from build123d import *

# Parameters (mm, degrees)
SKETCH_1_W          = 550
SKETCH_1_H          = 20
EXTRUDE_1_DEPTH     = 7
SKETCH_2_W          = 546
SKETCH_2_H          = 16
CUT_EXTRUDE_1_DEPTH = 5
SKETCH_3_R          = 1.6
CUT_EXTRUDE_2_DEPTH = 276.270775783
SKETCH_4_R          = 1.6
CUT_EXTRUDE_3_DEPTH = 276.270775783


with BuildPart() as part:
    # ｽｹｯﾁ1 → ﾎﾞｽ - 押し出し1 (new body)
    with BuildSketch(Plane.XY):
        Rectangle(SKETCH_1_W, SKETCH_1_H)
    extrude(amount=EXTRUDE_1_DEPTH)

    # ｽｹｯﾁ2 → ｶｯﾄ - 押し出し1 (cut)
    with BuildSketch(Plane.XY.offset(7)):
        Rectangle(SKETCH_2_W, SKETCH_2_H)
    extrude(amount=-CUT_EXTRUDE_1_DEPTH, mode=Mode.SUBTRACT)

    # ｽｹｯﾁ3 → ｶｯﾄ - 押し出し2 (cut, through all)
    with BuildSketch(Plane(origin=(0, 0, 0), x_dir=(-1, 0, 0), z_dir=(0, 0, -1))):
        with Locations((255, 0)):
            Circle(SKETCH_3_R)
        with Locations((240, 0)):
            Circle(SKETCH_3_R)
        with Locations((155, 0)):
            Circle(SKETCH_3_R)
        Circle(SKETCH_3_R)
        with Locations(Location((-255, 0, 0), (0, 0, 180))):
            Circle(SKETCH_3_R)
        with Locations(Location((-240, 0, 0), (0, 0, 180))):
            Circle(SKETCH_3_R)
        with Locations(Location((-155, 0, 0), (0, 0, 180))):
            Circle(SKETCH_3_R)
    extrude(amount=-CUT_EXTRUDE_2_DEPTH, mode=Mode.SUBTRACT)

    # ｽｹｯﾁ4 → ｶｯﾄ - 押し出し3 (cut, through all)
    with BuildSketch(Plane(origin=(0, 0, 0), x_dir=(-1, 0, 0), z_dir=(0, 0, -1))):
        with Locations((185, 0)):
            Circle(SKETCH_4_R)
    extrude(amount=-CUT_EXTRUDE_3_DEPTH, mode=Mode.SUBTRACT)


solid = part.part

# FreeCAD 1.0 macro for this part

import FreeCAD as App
import Part
import Sketcher
Q = App.Units.Quantity

doc = App.newDocument("Part")
params = doc.addObject("Spreadsheet::Sheet", "Params")
for row, (alias, value) in enumerate([
    ("sketch1_width", "550 mm"),
    ("sketch1_height", "20 mm"),
    ("pad1_length", "7 mm"),
    ("sketch2_width", "546 mm"),
    ("sketch2_height", "16 mm"),
    ("pocket1_length", "5 mm"),
    ("sketch3_diameter", "3.2 mm"),
    ("sketch4_diameter", "3.2 mm"),
], start=1):
    params.set(f"A{row}", alias)
    params.set(f"B{row}", "=" + value)
    params.setAlias(f"B{row}", alias)

body = doc.addObject("PartDesign::Body", "Body")

sketch1 = body.newObject("Sketcher::SketchObject", "Sketch")
sketch1.AttachmentSupport = (doc.getObject("XY_Plane"), [""])
sketch1.MapMode = "FlatFace"
sketch1.addGeometry([
    Part.LineSegment(App.Vector(-275, 10, 0), App.Vector(-275, -10, 0)),
    Part.LineSegment(App.Vector(-275, -10, 0), App.Vector(275, -10, 0)),
    Part.LineSegment(App.Vector(275, -10, 0), App.Vector(275, 10, 0)),
    Part.LineSegment(App.Vector(275, 10, 0), App.Vector(-275, 10, 0)),
], False)
sketch1.addConstraint([
    Sketcher.Constraint("Coincident", 0, 2, 1, 1),
    Sketcher.Constraint("Coincident", 1, 2, 2, 1),
    Sketcher.Constraint("Coincident", 2, 2, 3, 1),
    Sketcher.Constraint("Coincident", 3, 2, 0, 1),
    Sketcher.Constraint("Vertical", 0),
    Sketcher.Constraint("Horizontal", 1),
    Sketcher.Constraint("Vertical", 2),
    Sketcher.Constraint("Horizontal", 3),
    Sketcher.Constraint("Symmetric", 0, 2, 2, 2, -1, 1),
    Sketcher.Constraint("DistanceX", 1, 1, 1, 2, Q("550 mm")),
    Sketcher.Constraint("DistanceY", 0, 2, 0, 1, Q("20 mm")),
])
sketch1.setExpression("Constraints[9]", "Params.sketch1_width")
sketch1.setExpression("Constraints[10]", "Params.sketch1_height")
pad1 = body.newObject("PartDesign::Pad", "Pad")
pad1.Profile = sketch1
pad1.setExpression("Length", "Params.pad1_length")

sketch2 = body.newObject("Sketcher::SketchObject", "Sketch001")
sketch2.AttachmentSupport = (doc.getObject("XY_Plane"), [""])
sketch2.MapMode = "FlatFace"
sketch2.AttachmentOffset = App.Placement(App.Vector(0, 0, 7), App.Rotation())
sketch2.addGeometry([
    Part.LineSegment(App.Vector(-273, 8, 0), App.Vector(-273, -8, 0)),
    Part.LineSegment(App.Vector(-273, -8, 0), App.Vector(273, -8, 0)),
    Part.LineSegment(App.Vector(273, -8, 0), App.Vector(273, 8, 0)),
    Part.LineSegment(App.Vector(273, 8, 0), App.Vector(-273, 8, 0)),
], False)
sketch2.addConstraint([
    Sketcher.Constraint("Coincident", 0, 2, 1, 1),
    Sketcher.Constraint("Coincident", 1, 2, 2, 1),
    Sketcher.Constraint("Coincident", 2, 2, 3, 1),
    Sketcher.Constraint("Coincident", 3, 2, 0, 1),
    Sketcher.Constraint("Vertical", 0),
    Sketcher.Constraint("Horizontal", 1),
    Sketcher.Constraint("Vertical", 2),
    Sketcher.Constraint("Horizontal", 3),
    Sketcher.Constraint("Symmetric", 0, 2, 2, 2, -1, 1),
    Sketcher.Constraint("DistanceX", 1, 1, 1, 2, Q("546 mm")),
    Sketcher.Constraint("DistanceY", 0, 2, 0, 1, Q("16 mm")),
])
sketch2.setExpression("Constraints[9]", "Params.sketch2_width")
sketch2.setExpression("Constraints[10]", "Params.sketch2_height")
pocket1 = body.newObject("PartDesign::Pocket", "Pocket")
pocket1.Profile = sketch2
pocket1.setExpression("Length", "Params.pocket1_length")

sketch3 = body.newObject("Sketcher::SketchObject", "Sketch002")
sketch3.AttachmentSupport = (doc.getObject("XY_Plane"), [""])
sketch3.MapMode = "FlatFace"
sketch3.addGeometry([
    Part.Circle(App.Vector(-255, 0, 0), App.Vector(0, 0, 1), 1.6),
    Part.Circle(App.Vector(-240, 0, 0), App.Vector(0, 0, 1), 1.6),
    Part.Circle(App.Vector(-155, 0, 0), App.Vector(0, 0, 1), 1.6),
    Part.Circle(App.Vector(0, 0, 0), App.Vector(0, 0, 1), 1.6),
    Part.Circle(App.Vector(255, 0, 0), App.Vector(0, 0, 1), 1.6),
    Part.Circle(App.Vector(240, 0, 0), App.Vector(0, 0, 1), 1.6),
    Part.Circle(App.Vector(155, 0, 0), App.Vector(0, 0, 1), 1.6),
], False)
sketch3.addConstraint([
    Sketcher.Constraint("Coincident", 3, 3, -1, 1),
    Sketcher.Constraint("Equal", 0, 1),
    Sketcher.Constraint("Equal", 1, 2),
    Sketcher.Constraint("Equal", 2, 3),
    Sketcher.Constraint("Equal", 3, 4),
    Sketcher.Constraint("Equal", 4, 5),
    Sketcher.Constraint("Equal", 5, 6),
    Sketcher.Constraint("Symmetric", 0, 3, 4, 3, -1, 1),
    Sketcher.Constraint("Symmetric", 1, 3, 5, 3, -1, 1),
    Sketcher.Constraint("Symmetric", 2, 3, 6, 3, -1, 1),
    Sketcher.Constraint("PointOnObject", 0, 3, -1),
    Sketcher.Constraint("PointOnObject", 1, 3, -1),
    Sketcher.Constraint("PointOnObject", 2, 3, -1),
    Sketcher.Constraint("Diameter", 0, Q("3.2 mm")),
    Sketcher.Constraint("DistanceX", 0, 3, -1, 1, Q("255 mm")),
    Sketcher.Constraint("DistanceX", 1, 3, -1, 1, Q("240 mm")),
    Sketcher.Constraint("DistanceX", 2, 3, -1, 1, Q("155 mm")),
])
sketch3.setExpression("Constraints[13]", "Params.sketch3_diameter")
pocket2 = body.newObject("PartDesign::Pocket", "Pocket001")
pocket2.Profile = sketch3
pocket2.Type = "ThroughAll"
pocket2.Reversed = True

sketch4 = body.newObject("Sketcher::SketchObject", "Sketch003")
sketch4.AttachmentSupport = (doc.getObject("XY_Plane"), [""])
sketch4.MapMode = "FlatFace"
sketch4.addGeometry(Part.Circle(App.Vector(-185, 0, 0), App.Vector(0, 0, 1), 1.6), False)
sketch4.addConstraint([
    Sketcher.Constraint("PointOnObject", 0, 3, -1),
    Sketcher.Constraint("Diameter", 0, Q("3.2 mm")),
    Sketcher.Constraint("DistanceX", 0, 3, -1, 1, Q("185 mm")),
])
sketch4.setExpression("Constraints[1]", "Params.sketch4_diameter")
pocket3 = body.newObject("PartDesign::Pocket", "Pocket002")
pocket3.Profile = sketch4
pocket3.Type = "ThroughAll"
pocket3.Reversed = True

doc.recompute()
